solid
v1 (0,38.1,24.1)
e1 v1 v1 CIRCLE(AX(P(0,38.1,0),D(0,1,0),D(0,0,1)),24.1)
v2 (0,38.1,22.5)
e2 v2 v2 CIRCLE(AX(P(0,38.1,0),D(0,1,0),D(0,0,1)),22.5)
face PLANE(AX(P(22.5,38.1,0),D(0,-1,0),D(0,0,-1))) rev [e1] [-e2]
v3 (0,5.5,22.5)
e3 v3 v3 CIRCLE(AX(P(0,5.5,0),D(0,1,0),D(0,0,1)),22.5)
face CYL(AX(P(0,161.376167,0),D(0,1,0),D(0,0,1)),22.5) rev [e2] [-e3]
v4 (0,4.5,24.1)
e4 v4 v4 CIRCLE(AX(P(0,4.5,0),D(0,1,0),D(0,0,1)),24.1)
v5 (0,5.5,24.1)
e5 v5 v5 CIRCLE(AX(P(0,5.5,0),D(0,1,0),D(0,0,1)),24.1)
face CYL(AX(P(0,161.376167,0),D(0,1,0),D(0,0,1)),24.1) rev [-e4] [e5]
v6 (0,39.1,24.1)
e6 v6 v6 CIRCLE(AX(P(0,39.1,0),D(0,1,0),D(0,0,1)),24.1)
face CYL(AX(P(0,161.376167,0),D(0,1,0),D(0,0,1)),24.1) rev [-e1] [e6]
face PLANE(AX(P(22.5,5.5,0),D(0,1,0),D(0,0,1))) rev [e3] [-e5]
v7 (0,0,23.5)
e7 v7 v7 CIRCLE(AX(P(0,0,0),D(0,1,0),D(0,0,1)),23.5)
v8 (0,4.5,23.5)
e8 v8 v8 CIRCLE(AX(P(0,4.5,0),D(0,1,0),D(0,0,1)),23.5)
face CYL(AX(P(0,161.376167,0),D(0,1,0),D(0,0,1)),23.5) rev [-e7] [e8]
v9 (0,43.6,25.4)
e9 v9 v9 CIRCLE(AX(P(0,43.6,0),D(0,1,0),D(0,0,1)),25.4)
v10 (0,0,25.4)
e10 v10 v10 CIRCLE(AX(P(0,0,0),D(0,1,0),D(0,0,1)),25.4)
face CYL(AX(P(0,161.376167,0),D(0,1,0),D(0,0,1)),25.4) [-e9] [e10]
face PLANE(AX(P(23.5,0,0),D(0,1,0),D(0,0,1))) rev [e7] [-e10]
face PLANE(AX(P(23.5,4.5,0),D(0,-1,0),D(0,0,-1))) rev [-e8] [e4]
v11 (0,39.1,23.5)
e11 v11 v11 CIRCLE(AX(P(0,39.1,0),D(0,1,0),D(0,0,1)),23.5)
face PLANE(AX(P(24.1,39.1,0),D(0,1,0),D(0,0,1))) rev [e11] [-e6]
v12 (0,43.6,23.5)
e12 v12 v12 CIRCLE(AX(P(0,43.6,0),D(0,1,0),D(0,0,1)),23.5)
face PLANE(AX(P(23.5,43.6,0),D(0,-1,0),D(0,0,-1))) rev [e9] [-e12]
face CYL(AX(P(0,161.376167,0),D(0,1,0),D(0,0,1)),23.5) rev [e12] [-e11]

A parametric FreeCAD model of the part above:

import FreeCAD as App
import Part
import Sketcher
from FreeCAD import Vector

doc = App.newDocument("Part")
body = doc.addObject("PartDesign::Body", "Body")

# Sketch on XY plane
sketch1 = body.newObject("Sketcher::SketchObject", "Sketch")
sketch1.AttachmentSupport = (doc.getObject("XY_Plane"), [""])
sketch1.MapMode = "FlatFace"
sketch1.addGeometry([
    Part.LineSegment(Vector(25.4, 0, 0), Vector(25.4, 43.6, 0)),  # 0
    Part.LineSegment(Vector(25.4, 43.6, 0), Vector(23.5, 43.6, 0)),  # 1
    Part.LineSegment(Vector(23.5, 43.6, 0), Vector(23.5, 39.1, 0)),  # 2
    Part.LineSegment(Vector(23.5, 39.1, 0), Vector(24.1, 39.1, 0)),  # 3
    Part.LineSegment(Vector(24.1, 39.1, 0), Vector(24.1, 38.1, 0)),  # 4
    Part.LineSegment(Vector(24.1, 38.1, 0), Vector(22.5, 38.1, 0)),  # 5
    Part.LineSegment(Vector(22.5, 38.1, 0), Vector(22.5, 5.5, 0)),  # 6
    Part.LineSegment(Vector(22.5, 5.5, 0), Vector(24.1, 5.5, 0)),  # 7
    Part.LineSegment(Vector(24.1, 5.5, 0), Vector(24.1, 4.5, 0)),  # 8
    Part.LineSegment(Vector(24.1, 4.5, 0), Vector(23.5, 4.5, 0)),  # 9
    Part.LineSegment(Vector(23.5, 4.5, 0), Vector(23.5, 0, 0)),  # 10
    Part.LineSegment(Vector(23.5, 0, 0), Vector(25.4, 0, 0)),  # 11
], False)
sketch1.addConstraint([
    Sketcher.Constraint("Coincident", 0, 2, 1, 1),
    Sketcher.Constraint("Coincident", 1, 2, 2, 1),
    Sketcher.Constraint("Coincident", 2, 2, 3, 1),
    Sketcher.Constraint("Coincident", 3, 2, 4, 1),
    Sketcher.Constraint("Coincident", 4, 2, 5, 1),
    Sketcher.Constraint("Coincident", 5, 2, 6, 1),
    Sketcher.Constraint("Coincident", 6, 2, 7, 1),
    Sketcher.Constraint("Coincident", 7, 2, 8, 1),
    Sketcher.Constraint("Coincident", 8, 2, 9, 1),
    Sketcher.Constraint("Coincident", 9, 2, 10, 1),
    Sketcher.Constraint("Coincident", 10, 2, 11, 1),
    Sketcher.Constraint("Coincident", 11, 2, 0, 1),
    Sketcher.Constraint("Vertical", 0),
    Sketcher.Constraint("Horizontal", 1),
    Sketcher.Constraint("Vertical", 2),
    Sketcher.Constraint("Horizontal", 3),
    Sketcher.Constraint("Vertical", 4),
    Sketcher.Constraint("Horizontal", 5),
    Sketcher.Constraint("Vertical", 6),
    Sketcher.Constraint("Horizontal", 7),
    Sketcher.Constraint("Vertical", 8),
    Sketcher.Constraint("Horizontal", 9),
    Sketcher.Constraint("Vertical", 10),
    Sketcher.Constraint("Horizontal", 11),
    Sketcher.Constraint("PointOnObject", 10, 2, -1),
    Sketcher.Constraint("Vertical", 4, 2, 7, 2),
    Sketcher.Constraint("Vertical", 2, 2, 9, 2),
    Sketcher.Constraint("Equal", 4, 8),
    Sketcher.Constraint("Equal", 2, 10),
    Sketcher.Constraint("DistanceY", 4, 2, 4, 1, 1.0),
    Sketcher.Constraint("DistanceX", 1, 2, 1, 1, 1.9),
    Sketcher.Constraint("DistanceX", 3, 1, 3, 2, 0.6),
    Sketcher.Constraint("DistanceX", 5, 2, 5, 1, 1.6),
    Sketcher.Constraint("DistanceY", 0, 1, 0, 2, 43.6),
    Sketcher.Constraint("DistanceY", 2, 2, 2, 1, 4.5),
    Sketcher.Constraint("DistanceX", -1, 1, 0, 2, 25.4),
])
revolution = body.newObject("PartDesign::Revolution", "Revolution")
revolution.Profile = sketch1
revolution.ReferenceAxis = (sketch1, ["V_Axis"])
revolution.Angle = 360

doc.recompute()
